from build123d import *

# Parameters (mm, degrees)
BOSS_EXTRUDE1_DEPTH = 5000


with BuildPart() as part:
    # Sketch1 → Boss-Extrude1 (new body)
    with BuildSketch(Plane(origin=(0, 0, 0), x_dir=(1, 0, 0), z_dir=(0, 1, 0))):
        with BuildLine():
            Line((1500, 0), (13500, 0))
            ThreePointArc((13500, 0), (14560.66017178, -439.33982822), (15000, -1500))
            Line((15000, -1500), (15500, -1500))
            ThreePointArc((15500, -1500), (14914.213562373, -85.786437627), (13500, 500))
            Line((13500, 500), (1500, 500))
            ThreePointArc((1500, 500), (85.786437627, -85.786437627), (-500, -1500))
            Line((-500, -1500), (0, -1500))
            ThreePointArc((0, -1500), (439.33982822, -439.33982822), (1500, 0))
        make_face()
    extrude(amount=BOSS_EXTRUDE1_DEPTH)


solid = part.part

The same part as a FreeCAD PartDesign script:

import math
import FreeCAD as App
import Part
import Sketcher

V = App.Vector

doc = App.newDocument("Part")
body = doc.addObject("PartDesign::Body", "Body")

# Sketch on XZ plane
sketch1 = body.newObject("Sketcher::SketchObject", "Sketch")
sketch1.AttachmentSupport = (doc.getObject("XZ_Plane"), [""])
sketch1.MapMode = "FlatFace"
sketch1.addGeometry([
    Part.LineSegment(V(1500, 0, 0), V(13500, 0, 0)),  # 0
    Part.ArcOfCircle(Part.Circle(V(13500, 1500, 0), V(0, 0, 1), 1500), math.radians(-90), math.radians(0)),  # 1
    Part.LineSegment(V(15000, 1500, 0), V(15500, 1500, 0)),  # 2
    Part.ArcOfCircle(Part.Circle(V(13500, 1500, 0), V(0, 0, 1), 2000), math.radians(-90), math.radians(0)),  # 3
    Part.LineSegment(V(13500, -500, 0), V(1500, -500, 0)),  # 4
    Part.ArcOfCircle(Part.Circle(V(1500, 1500, 0), V(0, 0, 1), 2000), math.radians(180), math.radians(270)),  # 5
    Part.LineSegment(V(-500, 1500, 0), V(0, 1500, 0)),  # 6
    Part.ArcOfCircle(Part.Circle(V(1500, 1500, 0), V(0, 0, 1), 1500), math.radians(180), math.radians(270)),  # 7
], False)
sketch1.addConstraint([
    Sketcher.Constraint("Coincident", 0, 2, 1, 1),
    Sketcher.Constraint("Coincident", 1, 2, 2, 1),
    Sketcher.Constraint("Coincident", 2, 2, 3, 2),
    Sketcher.Constraint("Coincident", 3, 1, 4, 1),
    Sketcher.Constraint("Coincident", 4, 2, 5, 2),
    Sketcher.Constraint("Coincident", 5, 1, 6, 1),
    Sketcher.Constraint("Coincident", 6, 2, 7, 1),
    Sketcher.Constraint("Coincident", 7, 2, 0, 1),
    Sketcher.Constraint("Horizontal", 0),
    Sketcher.Constraint("Horizontal", 2),
    Sketcher.Constraint("Horizontal", 4),
    Sketcher.Constraint("Horizontal", 6),
    Sketcher.Constraint("Coincident", 3, 3, 1, 3),
    Sketcher.Constraint("Coincident", 7, 3, 5, 3),
    Sketcher.Constraint("Equal", 3, 5),
    Sketcher.Constraint("PointOnObject", 0, 2, -1),
    Sketcher.Constraint("PointOnObject", 6, 2, -2),
    Sketcher.Constraint("Vertical", 3, 3, 0, 2),
    Sketcher.Constraint("Vertical", 7, 3, 4, 2),
    Sketcher.Constraint("Equal", 0, 4),
    Sketcher.Constraint("Radius", 1, 1500.0),
    Sketcher.Constraint("Radius", 3, 2000.0),
    Sketcher.Constraint("DistanceX", 0, 1, 0, 2, 12000.0),
    Sketcher.Constraint("DistanceX", -1, 1, 1, 3, 13500.0),
    Sketcher.Constraint("DistanceY", -1, 1, 2, 2, 1500.0),
    Sketcher.Constraint("DistanceY", -1, 1, 6, 2, 1500.0),
])
pad1 = body.newObject("PartDesign::Pad", "Pad")
pad1.Profile = sketch1
pad1.Length = 5000
pad1.Reversed = True

doc.recompute()
